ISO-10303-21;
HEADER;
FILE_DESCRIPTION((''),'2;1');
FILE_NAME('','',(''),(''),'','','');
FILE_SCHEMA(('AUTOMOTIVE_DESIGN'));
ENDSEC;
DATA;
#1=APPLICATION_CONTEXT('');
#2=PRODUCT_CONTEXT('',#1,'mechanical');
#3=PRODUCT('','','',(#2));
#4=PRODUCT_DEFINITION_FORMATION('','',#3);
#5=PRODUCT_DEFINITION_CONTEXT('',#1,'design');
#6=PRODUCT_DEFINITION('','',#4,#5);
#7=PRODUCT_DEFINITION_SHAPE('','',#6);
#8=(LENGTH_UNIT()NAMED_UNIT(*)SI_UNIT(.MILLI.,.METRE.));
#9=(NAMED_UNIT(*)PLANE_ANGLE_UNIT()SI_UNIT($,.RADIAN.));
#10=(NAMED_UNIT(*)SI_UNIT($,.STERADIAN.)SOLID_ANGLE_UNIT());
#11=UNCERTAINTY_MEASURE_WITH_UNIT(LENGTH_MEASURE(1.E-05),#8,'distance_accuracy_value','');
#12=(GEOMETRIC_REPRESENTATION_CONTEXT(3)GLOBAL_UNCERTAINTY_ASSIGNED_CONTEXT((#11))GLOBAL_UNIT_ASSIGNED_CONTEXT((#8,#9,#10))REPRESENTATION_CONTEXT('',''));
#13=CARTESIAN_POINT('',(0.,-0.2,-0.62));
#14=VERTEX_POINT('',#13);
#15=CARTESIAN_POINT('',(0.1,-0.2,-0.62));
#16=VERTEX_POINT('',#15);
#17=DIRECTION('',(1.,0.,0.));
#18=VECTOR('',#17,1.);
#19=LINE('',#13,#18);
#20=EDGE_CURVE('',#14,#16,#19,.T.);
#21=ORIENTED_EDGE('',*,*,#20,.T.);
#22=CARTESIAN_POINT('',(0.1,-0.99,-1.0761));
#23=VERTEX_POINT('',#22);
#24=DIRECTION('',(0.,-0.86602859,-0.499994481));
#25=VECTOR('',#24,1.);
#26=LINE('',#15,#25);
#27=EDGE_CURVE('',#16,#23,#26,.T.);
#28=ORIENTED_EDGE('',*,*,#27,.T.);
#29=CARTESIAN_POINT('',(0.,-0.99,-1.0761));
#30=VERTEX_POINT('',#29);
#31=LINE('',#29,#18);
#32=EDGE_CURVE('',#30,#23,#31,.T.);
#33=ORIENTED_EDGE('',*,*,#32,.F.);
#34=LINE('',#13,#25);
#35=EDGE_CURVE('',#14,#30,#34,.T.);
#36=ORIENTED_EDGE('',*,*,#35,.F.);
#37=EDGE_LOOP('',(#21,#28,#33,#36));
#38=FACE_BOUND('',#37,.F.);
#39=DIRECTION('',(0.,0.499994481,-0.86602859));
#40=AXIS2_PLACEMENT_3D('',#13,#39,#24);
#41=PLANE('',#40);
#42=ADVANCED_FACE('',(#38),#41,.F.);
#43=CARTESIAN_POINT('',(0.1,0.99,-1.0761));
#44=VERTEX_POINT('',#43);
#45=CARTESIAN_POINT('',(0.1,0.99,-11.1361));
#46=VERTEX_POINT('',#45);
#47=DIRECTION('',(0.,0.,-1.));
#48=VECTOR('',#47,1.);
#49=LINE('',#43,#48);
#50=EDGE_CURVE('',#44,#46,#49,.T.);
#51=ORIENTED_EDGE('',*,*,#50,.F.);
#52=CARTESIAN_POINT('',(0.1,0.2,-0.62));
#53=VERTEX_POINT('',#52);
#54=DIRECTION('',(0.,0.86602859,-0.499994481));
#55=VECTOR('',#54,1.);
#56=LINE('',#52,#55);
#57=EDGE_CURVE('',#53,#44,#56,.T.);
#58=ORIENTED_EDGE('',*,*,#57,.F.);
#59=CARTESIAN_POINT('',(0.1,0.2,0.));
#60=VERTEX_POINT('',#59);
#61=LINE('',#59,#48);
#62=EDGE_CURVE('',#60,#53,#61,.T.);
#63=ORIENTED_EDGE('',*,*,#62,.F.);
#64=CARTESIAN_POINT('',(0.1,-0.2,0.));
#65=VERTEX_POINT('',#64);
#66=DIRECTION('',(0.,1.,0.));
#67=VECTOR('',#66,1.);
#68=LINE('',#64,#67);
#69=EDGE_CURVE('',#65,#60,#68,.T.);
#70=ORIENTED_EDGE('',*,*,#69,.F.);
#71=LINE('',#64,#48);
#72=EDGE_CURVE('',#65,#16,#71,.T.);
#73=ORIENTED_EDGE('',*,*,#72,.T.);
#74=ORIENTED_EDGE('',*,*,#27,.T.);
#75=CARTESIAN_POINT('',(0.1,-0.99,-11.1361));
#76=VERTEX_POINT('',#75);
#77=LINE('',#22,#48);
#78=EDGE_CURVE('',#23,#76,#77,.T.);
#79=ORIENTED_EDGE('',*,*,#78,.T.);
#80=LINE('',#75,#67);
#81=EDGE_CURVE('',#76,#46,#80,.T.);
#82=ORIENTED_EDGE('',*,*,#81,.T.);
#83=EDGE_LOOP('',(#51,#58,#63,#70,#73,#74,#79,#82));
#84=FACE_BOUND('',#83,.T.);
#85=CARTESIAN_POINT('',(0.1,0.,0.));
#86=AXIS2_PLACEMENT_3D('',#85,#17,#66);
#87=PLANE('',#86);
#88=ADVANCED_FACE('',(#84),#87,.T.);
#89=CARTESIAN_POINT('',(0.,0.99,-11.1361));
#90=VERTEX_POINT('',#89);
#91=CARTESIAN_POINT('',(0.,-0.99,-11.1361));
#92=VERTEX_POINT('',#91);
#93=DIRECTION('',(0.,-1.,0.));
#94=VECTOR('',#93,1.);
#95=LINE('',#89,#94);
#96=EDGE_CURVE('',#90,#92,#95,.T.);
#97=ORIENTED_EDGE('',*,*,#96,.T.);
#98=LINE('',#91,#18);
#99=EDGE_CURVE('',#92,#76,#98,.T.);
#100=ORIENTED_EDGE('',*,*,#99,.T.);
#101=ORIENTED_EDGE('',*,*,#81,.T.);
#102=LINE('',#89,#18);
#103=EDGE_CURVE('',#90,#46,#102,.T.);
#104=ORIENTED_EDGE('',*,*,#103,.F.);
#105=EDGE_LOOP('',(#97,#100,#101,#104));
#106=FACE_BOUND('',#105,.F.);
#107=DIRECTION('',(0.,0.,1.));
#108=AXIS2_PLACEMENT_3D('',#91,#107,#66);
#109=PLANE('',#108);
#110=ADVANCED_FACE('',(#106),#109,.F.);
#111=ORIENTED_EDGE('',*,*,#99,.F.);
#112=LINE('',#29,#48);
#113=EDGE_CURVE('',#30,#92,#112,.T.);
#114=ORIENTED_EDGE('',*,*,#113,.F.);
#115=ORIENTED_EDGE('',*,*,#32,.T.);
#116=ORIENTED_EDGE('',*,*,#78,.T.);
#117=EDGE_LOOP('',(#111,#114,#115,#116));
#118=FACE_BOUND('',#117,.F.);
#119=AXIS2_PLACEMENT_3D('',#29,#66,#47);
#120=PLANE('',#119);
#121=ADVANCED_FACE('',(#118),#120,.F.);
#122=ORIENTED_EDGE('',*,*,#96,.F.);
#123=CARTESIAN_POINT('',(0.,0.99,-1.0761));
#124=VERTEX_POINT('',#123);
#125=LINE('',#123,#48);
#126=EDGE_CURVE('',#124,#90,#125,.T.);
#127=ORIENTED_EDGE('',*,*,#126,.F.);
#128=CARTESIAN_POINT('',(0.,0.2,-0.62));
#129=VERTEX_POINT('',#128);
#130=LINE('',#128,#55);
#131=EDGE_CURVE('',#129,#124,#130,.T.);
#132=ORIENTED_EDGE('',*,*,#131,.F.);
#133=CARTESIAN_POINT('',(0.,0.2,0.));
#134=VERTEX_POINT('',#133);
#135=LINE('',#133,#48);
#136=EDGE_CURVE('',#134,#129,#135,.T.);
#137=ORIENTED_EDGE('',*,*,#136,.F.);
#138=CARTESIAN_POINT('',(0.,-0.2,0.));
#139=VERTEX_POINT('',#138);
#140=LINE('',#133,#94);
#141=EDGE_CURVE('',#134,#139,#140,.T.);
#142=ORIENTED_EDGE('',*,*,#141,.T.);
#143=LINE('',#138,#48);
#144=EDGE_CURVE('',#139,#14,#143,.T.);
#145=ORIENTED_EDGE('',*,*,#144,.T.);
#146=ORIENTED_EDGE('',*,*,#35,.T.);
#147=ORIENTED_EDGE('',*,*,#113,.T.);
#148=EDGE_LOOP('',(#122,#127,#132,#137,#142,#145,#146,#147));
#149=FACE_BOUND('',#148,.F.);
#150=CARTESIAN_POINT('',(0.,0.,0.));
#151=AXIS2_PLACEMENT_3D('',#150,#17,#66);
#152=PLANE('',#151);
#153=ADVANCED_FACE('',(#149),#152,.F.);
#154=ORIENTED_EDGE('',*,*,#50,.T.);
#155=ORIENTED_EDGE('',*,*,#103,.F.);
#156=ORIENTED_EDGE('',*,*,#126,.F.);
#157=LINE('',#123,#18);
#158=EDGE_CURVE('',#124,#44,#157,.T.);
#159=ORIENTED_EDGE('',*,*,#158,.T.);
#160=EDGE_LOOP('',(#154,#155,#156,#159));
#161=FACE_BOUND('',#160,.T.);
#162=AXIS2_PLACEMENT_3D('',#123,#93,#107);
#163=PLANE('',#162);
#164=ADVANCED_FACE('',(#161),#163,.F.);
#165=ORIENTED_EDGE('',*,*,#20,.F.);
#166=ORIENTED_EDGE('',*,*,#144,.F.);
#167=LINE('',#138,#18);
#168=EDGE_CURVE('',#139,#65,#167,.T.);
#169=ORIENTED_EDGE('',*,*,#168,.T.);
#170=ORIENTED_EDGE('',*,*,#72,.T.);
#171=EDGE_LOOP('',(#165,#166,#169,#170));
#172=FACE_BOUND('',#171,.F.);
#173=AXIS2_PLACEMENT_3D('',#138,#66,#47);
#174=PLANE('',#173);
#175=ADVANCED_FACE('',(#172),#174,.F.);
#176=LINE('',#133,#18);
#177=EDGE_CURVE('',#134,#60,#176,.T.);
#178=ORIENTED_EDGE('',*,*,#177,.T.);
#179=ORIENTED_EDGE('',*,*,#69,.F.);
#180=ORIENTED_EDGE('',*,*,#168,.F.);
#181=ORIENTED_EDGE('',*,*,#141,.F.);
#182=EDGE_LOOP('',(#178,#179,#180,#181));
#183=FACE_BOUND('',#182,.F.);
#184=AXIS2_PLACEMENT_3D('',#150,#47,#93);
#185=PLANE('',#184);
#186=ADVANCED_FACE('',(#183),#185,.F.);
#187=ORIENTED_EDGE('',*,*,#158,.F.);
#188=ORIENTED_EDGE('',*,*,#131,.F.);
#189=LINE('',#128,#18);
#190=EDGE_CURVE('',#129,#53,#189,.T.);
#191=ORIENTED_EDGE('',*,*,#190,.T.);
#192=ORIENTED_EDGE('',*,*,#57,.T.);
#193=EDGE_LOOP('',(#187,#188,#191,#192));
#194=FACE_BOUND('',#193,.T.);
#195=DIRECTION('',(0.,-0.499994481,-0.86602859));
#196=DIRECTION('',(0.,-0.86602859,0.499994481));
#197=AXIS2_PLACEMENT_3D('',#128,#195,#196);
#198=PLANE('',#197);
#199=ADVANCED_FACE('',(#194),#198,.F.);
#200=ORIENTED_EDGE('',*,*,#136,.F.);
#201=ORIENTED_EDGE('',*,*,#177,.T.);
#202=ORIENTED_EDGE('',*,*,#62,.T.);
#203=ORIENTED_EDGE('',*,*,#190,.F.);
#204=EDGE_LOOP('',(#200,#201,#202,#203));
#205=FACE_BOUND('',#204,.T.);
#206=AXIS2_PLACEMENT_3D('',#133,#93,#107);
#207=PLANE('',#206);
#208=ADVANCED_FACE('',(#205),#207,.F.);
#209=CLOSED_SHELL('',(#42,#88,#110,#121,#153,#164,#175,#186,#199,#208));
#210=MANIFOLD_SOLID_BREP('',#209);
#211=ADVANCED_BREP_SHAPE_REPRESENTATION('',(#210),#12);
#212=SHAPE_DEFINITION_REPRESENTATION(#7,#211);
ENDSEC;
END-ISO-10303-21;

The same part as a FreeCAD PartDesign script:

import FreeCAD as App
import Part
import Sketcher
Q = App.Units.Quantity

doc = App.newDocument("Part")
body = doc.addObject("PartDesign::Body", "Body")

# Sketch on YZ plane
sketch1 = doc.addObject("Sketcher::SketchObject", "Sketch")
body.addObject(sketch1)
sketch1.AttachmentSupport = (doc.YZ_Plane, [""])
sketch1.MapMode = "FlatFace"
sketch1.addGeometry(Part.LineSegment(App.Vector(0, 0, 0), App.Vector(-0.2, 0, 0)), False)
sketch1.addGeometry(Part.LineSegment(App.Vector(-0.2, 0, 0), App.Vector(-0.2, -0.62, 0)), False)
sketch1.addGeometry(Part.LineSegment(App.Vector(-0.2, -0.62, 0), App.Vector(-0.99, -1.08, 0)), False)
sketch1.addGeometry(Part.LineSegment(App.Vector(-0.99, -1.08, 0), App.Vector(-0.99, -11.14, 0)), False)
sketch1.addGeometry(Part.LineSegment(App.Vector(-0.99, -11.14, 0), App.Vector(0, -11.14, 0)), False)
sketch1.addGeometry(Part.LineSegment(App.Vector(0, -11.14, 0), App.Vector(0, 0, 0)), False)
sketch1.addConstraint(Sketcher.Constraint("Coincident", 0, 2, 1, 1))
sketch1.addConstraint(Sketcher.Constraint("Coincident", 1, 2, 2, 1))
sketch1.addConstraint(Sketcher.Constraint("Coincident", 2, 2, 3, 1))
sketch1.addConstraint(Sketcher.Constraint("Coincident", 3, 2, 4, 1))
sketch1.addConstraint(Sketcher.Constraint("Coincident", 4, 2, 5, 1))
sketch1.addConstraint(Sketcher.Constraint("Coincident", 5, 2, 0, 1))
sketch1.addConstraint(Sketcher.Constraint("Horizontal", 0))
sketch1.addConstraint(Sketcher.Constraint("Vertical", 1))
sketch1.addConstraint(Sketcher.Constraint("Vertical", 3))
sketch1.addConstraint(Sketcher.Constraint("Horizontal", 4))
sketch1.addConstraint(Sketcher.Constraint("Vertical", 5))
sketch1.addConstraint(Sketcher.Constraint("Coincident", 5, 2, -1, 1))
sketch1.addConstraint(Sketcher.Constraint("DistanceX", 0, 2, 0, 1, 0.2))
sketch1.addConstraint(Sketcher.Constraint("DistanceX", 4, 1, 4, 2, 0.99))
sketch1.addConstraint(Sketcher.Constraint("DistanceY", 1, 2, 1, 1, 0.62))
sketch1.addConstraint(Sketcher.Constraint("DistanceY", 3, 2, 3, 1, 10.06))
sketch1.addConstraint(Sketcher.Constraint("Angle", 2, Q("-150.0004 deg")))
pad1 = doc.addObject("PartDesign::Pad", "Pad")
body.addObject(pad1)
pad1.Profile = sketch1
pad1.Length = 0.1
doc.recompute()

mirrored = doc.addObject("PartDesign::Mirrored", "Mirrored")
body.addObject(mirrored)
mirrored.Originals = [pad1]
mirrored.MirrorPlane = (doc.XZ_Plane, [""])
body.Tip = mirrored

doc.recompute()
